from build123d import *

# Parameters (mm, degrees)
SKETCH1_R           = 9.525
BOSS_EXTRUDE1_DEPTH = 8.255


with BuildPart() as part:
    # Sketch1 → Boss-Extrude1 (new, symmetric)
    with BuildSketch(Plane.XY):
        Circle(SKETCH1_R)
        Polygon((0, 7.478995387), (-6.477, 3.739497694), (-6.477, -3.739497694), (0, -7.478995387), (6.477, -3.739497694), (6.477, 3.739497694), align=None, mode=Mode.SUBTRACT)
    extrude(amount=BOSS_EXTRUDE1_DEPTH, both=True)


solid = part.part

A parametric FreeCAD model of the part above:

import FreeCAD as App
import Part
import Sketcher
from FreeCAD import Vector
Q = App.Units.Quantity

doc = App.newDocument("Part")
body = doc.addObject("PartDesign::Body", "Body")

# Sketch on XY plane
sketch1 = doc.addObject("Sketcher::SketchObject", "Sketch")
body.addObject(sketch1)
sketch1.AttachmentSupport = (doc.XY_Plane, [""])
sketch1.MapMode = "FlatFace"
sketch1.addGeometry([
    Part.Circle(Vector(0, 0, 0), Vector(0, 0, 1), 10),  # 0
    Part.LineSegment(Vector(-6, 4, 0), Vector(0, 7, 0)),  # 1
    Part.LineSegment(Vector(0, 7, 0), Vector(6, 4, 0)),  # 2
    Part.LineSegment(Vector(6, 4, 0), Vector(6, -4, 0)),  # 3
    Part.LineSegment(Vector(6, -4, 0), Vector(0, -7, 0)),  # 4
    Part.LineSegment(Vector(0, -7, 0), Vector(-6, -4, 0)),  # 5
    Part.LineSegment(Vector(-6, -4, 0), Vector(-6, 4, 0)),  # 6
], False)
sketch1.addConstraint([
    Sketcher.Constraint("Coincident", 1, 2, 2, 1),
    Sketcher.Constraint("Coincident", 2, 2, 3, 1),
    Sketcher.Constraint("Coincident", 3, 2, 4, 1),
    Sketcher.Constraint("Coincident", 4, 2, 5, 1),
    Sketcher.Constraint("Coincident", 5, 2, 6, 1),
    Sketcher.Constraint("Coincident", 6, 2, 1, 1),
    Sketcher.Constraint("Vertical", 3),
    Sketcher.Constraint("Vertical", 6),
    Sketcher.Constraint("Coincident", 0, 3, -1, 1),
    Sketcher.Constraint("Symmetric", 1, 2, 4, 2, -1, 1),
    Sketcher.Constraint("Symmetric", 2, 2, 5, 2, -1, 1),
    Sketcher.Constraint("PointOnObject", 1, 2, -2),
    Sketcher.Constraint("Parallel", 1, 4),
    Sketcher.Constraint("Horizontal", 3, 2, 5, 2),
    Sketcher.Constraint("Diameter", 0, Q("0.75 in")),
    Sketcher.Constraint("Angle", 1, Q("30 deg")),
    Sketcher.Constraint("DistanceX", 5, 2, 3, 2, Q("0.51 in")),
    Sketcher.Constraint("DistanceY", 3, 2, 3, 1, 7.478995),
])
pad1 = doc.addObject("PartDesign::Pad", "Pad")
body.addObject(pad1)
pad1.Profile = sketch1
pad1.Length = Q("0.65 in")
pad1.Midplane = True

doc.recompute()
